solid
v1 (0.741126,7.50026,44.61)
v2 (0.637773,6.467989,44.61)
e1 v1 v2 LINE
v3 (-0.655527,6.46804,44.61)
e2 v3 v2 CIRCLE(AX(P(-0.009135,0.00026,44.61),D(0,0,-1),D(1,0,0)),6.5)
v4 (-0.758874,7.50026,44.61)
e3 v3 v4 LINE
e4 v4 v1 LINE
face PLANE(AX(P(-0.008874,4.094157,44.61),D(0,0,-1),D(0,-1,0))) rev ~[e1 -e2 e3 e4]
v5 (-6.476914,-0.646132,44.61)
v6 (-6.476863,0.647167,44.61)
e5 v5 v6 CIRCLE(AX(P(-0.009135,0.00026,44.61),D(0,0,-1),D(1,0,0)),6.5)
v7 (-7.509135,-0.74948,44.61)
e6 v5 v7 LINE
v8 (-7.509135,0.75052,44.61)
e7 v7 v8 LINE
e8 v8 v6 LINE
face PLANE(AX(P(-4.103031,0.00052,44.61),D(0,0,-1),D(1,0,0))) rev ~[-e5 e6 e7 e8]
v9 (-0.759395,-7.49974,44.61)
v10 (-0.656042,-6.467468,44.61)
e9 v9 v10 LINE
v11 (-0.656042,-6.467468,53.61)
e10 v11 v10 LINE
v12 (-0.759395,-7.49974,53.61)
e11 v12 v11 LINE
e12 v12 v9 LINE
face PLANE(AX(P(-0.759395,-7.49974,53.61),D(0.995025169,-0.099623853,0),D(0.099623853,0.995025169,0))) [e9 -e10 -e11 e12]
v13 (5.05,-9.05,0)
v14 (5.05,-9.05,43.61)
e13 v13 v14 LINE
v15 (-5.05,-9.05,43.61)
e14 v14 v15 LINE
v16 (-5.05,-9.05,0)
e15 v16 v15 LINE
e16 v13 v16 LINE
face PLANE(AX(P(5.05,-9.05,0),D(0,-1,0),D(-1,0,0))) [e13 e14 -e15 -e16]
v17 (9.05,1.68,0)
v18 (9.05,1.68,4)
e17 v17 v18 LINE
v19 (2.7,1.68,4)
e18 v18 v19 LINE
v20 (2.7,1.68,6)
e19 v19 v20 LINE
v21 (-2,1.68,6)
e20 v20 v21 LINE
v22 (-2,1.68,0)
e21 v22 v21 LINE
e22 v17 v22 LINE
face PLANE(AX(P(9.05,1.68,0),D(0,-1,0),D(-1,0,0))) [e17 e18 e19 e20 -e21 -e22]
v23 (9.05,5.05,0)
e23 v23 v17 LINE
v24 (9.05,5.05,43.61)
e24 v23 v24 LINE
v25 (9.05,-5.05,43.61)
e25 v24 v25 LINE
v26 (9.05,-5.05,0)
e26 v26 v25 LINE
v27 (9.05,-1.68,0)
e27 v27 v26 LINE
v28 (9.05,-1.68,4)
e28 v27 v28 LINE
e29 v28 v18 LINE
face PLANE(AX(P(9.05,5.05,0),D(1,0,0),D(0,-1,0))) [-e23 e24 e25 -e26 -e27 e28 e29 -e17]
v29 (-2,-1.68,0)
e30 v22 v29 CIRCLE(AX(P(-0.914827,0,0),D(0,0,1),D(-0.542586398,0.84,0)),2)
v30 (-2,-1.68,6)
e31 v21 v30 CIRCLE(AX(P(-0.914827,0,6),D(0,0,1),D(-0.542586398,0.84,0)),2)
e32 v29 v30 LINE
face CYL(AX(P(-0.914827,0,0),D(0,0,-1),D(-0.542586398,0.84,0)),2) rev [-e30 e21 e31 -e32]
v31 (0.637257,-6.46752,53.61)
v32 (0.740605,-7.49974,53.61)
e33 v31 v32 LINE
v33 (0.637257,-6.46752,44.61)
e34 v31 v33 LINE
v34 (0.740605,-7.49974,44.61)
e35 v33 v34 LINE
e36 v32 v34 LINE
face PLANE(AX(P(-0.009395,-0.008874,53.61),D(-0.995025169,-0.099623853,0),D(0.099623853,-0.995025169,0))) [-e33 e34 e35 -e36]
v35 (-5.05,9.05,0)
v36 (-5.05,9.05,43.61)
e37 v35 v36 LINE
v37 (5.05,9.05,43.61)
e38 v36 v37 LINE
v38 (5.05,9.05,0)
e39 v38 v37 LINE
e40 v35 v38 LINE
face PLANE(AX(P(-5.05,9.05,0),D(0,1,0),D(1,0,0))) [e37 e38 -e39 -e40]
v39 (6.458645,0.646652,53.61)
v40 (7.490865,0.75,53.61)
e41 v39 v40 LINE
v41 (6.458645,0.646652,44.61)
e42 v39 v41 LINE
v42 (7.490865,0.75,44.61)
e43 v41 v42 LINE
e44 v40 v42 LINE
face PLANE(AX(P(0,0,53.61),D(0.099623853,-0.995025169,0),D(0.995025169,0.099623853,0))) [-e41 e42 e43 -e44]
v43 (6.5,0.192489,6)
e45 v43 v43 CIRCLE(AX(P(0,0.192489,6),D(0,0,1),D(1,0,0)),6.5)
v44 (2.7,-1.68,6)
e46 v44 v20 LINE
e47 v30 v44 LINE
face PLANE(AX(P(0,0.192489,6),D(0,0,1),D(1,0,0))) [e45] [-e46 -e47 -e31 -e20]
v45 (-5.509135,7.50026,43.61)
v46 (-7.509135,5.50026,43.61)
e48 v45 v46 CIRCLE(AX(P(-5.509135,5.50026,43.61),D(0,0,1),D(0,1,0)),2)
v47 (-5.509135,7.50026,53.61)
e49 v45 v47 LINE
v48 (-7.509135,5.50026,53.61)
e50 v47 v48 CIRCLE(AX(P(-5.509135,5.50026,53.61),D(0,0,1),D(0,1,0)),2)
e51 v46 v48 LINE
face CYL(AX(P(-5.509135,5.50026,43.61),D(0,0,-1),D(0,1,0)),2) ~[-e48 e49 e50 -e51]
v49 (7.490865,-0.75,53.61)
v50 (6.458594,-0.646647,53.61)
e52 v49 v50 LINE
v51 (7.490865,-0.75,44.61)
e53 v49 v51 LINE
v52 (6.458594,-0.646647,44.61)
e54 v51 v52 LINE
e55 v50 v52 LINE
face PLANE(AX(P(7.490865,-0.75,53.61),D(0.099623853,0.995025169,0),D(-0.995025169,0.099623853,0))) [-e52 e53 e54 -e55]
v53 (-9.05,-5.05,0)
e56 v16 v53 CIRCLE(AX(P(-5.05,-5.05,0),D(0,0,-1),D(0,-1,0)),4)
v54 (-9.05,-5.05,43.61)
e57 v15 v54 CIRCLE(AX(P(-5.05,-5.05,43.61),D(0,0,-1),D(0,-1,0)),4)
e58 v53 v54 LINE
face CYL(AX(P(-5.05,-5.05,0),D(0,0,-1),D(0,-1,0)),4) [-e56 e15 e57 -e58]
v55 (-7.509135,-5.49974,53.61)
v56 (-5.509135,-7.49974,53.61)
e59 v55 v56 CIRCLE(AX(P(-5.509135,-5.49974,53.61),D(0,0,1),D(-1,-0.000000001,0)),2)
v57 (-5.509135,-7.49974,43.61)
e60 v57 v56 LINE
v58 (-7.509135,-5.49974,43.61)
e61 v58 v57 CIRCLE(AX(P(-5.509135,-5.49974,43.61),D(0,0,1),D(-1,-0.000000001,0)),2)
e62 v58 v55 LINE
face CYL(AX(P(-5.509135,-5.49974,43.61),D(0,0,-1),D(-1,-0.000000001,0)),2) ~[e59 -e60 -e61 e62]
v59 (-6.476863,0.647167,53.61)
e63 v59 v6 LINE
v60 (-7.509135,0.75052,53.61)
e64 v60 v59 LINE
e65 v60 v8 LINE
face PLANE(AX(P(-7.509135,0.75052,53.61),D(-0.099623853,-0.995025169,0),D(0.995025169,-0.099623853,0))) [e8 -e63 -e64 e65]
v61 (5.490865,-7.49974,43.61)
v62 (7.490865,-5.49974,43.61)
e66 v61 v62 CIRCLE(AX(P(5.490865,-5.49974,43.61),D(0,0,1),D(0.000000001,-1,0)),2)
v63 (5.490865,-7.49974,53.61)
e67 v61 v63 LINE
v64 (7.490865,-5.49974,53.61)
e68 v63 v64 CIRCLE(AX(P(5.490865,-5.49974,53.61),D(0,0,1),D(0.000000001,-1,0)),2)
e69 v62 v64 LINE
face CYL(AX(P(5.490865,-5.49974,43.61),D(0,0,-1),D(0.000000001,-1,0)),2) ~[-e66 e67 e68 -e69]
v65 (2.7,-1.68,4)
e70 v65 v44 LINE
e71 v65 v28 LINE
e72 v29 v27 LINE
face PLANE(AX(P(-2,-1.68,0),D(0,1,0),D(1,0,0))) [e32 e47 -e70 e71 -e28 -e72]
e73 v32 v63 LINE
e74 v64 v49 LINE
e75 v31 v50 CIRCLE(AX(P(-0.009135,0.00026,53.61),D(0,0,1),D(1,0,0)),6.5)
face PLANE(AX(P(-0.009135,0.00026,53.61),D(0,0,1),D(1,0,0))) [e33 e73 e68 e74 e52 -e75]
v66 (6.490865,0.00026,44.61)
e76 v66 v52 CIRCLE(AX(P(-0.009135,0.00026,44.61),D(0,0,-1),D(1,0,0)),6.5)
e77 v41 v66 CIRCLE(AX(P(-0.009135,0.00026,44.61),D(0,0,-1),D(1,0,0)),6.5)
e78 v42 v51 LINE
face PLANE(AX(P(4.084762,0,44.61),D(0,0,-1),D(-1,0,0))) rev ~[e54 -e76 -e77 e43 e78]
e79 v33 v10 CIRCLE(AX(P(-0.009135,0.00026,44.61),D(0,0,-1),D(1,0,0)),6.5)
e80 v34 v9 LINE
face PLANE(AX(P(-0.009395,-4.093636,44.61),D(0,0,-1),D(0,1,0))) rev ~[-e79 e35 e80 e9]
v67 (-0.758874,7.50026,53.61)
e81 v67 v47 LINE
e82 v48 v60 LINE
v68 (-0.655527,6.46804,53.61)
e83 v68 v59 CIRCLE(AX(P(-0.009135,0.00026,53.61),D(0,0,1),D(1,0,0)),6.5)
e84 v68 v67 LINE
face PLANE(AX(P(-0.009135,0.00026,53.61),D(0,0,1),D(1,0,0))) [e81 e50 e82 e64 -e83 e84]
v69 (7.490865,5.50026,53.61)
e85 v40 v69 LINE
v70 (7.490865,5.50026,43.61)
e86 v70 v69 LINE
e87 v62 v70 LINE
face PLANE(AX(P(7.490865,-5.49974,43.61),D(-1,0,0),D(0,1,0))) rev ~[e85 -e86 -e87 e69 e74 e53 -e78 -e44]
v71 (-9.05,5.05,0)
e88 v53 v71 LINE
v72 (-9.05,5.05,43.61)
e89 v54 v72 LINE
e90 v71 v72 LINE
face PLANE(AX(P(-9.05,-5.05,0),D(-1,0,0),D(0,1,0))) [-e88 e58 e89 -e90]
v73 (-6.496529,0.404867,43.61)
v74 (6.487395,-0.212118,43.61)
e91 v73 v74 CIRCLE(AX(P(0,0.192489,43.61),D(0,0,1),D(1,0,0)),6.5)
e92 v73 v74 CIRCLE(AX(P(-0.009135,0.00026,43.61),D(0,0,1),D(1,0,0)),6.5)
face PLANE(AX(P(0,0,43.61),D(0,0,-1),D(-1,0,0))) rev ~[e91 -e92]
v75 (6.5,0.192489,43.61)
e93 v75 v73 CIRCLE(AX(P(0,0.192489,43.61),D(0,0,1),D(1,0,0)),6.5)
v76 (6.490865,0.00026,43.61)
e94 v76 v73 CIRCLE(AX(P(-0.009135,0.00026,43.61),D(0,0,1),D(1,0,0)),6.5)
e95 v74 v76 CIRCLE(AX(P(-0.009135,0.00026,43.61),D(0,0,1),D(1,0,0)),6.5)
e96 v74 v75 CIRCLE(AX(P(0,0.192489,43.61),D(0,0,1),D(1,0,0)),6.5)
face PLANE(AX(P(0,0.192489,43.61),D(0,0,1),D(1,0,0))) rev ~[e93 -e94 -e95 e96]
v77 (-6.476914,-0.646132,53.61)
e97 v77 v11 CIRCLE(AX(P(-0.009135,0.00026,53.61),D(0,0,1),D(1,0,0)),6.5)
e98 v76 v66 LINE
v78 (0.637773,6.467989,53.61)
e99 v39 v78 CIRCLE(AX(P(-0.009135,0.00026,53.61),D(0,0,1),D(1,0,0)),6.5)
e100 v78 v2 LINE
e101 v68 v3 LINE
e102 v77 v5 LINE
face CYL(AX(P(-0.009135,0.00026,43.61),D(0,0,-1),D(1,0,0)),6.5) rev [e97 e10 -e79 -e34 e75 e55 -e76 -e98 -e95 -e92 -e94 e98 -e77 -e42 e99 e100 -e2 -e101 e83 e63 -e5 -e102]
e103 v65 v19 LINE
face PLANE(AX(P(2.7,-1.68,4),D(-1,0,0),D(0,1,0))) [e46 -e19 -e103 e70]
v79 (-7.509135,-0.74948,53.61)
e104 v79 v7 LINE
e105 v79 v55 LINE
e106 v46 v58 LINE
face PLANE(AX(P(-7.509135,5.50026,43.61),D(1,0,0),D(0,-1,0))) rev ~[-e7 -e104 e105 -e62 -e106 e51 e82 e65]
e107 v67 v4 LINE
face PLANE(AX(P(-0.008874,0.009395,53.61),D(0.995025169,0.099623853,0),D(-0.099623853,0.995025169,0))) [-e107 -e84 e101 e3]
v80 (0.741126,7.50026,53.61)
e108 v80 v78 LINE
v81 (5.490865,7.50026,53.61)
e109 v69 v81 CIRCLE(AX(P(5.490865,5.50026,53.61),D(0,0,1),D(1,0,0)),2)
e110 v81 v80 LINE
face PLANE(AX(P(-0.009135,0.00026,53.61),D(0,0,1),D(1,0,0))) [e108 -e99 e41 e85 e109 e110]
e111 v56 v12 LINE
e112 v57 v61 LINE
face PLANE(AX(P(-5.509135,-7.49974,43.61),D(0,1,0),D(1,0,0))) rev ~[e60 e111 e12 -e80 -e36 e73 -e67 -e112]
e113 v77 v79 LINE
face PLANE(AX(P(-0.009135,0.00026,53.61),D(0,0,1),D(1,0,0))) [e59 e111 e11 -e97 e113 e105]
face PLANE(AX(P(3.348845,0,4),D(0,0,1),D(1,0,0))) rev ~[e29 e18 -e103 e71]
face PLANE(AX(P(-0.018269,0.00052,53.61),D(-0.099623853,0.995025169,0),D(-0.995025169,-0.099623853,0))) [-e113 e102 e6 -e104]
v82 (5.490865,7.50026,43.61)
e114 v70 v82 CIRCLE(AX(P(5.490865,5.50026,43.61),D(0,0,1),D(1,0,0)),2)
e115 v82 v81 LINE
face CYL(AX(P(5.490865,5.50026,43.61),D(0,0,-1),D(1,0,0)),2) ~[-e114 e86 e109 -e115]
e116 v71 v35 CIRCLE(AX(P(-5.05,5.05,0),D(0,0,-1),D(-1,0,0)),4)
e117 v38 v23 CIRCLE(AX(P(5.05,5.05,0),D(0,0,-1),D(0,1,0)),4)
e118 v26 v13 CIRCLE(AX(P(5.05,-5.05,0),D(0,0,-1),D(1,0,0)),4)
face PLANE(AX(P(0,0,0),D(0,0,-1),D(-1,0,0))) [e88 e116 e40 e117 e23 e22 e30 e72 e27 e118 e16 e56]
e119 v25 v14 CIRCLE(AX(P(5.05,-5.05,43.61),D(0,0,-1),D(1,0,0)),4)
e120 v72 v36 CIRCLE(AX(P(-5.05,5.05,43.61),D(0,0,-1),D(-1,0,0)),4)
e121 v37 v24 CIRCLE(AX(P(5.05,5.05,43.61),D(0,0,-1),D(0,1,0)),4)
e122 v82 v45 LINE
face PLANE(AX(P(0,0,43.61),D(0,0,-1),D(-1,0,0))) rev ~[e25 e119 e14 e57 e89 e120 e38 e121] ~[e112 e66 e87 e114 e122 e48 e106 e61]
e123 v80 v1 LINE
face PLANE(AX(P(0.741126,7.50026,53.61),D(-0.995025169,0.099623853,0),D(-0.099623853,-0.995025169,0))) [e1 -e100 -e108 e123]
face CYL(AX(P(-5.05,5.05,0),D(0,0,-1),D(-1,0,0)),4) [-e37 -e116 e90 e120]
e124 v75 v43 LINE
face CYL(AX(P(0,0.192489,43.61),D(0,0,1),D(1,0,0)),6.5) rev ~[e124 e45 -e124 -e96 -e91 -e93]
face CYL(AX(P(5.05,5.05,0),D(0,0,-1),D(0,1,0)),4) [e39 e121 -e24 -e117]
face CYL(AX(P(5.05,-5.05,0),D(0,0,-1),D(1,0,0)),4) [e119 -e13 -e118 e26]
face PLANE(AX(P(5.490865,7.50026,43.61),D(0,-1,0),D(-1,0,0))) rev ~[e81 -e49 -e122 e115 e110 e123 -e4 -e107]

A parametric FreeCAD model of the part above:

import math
import FreeCAD as App
import Part
import Sketcher

doc = App.newDocument("Part")
body = doc.addObject("PartDesign::Body", "Body")

sketch1 = body.newObject("Sketcher::SketchObject", "Sketch")
sketch1.AttachmentSupport = (doc.getObject("XY_Plane"), [""])
sketch1.MapMode = "FlatFace"
sketch1.addGeometry([
    Part.LineSegment(App.Vector(5.05, 9.05, 0), App.Vector(-5.05, 9.05, 0)),
    Part.ArcOfCircle(Part.Circle(App.Vector(-5.05, 5.05, 0), App.Vector(0, 0, 1), 4), math.radians(90), math.radians(180)),
    Part.LineSegment(App.Vector(-9.05, 5.05, 0), App.Vector(-9.05, -5.05, 0)),
    Part.ArcOfCircle(Part.Circle(App.Vector(-5.05, -5.05, 0), App.Vector(0, 0, 1), 4), math.radians(180), math.radians(270)),
    Part.LineSegment(App.Vector(-5.05, -9.05, 0), App.Vector(5.05, -9.05, 0)),
    Part.ArcOfCircle(Part.Circle(App.Vector(5.05, -5.05, 0), App.Vector(0, 0, 1), 4), math.radians(-90), math.radians(0)),
    Part.LineSegment(App.Vector(9.05, -5.05, 0), App.Vector(9.05, 5.05, 0)),
    Part.ArcOfCircle(Part.Circle(App.Vector(5.05, 5.05, 0), App.Vector(0, 0, 1), 4), math.radians(0), math.radians(90)),
], False)
sketch1.addConstraint([
    Sketcher.Constraint("Tangent", 0, 2, 1, 1),
    Sketcher.Constraint("Tangent", 1, 2, 2, 1),
    Sketcher.Constraint("Tangent", 2, 2, 3, 1),
    Sketcher.Constraint("Tangent", 3, 2, 4, 1),
    Sketcher.Constraint("Tangent", 4, 2, 5, 1),
    Sketcher.Constraint("Tangent", 5, 2, 6, 1),
    Sketcher.Constraint("Tangent", 6, 2, 7, 1),
    Sketcher.Constraint("Tangent", 7, 2, 0, 1),
    Sketcher.Constraint("Horizontal", 0),
    Sketcher.Constraint("Vertical", 2),
    Sketcher.Constraint("Horizontal", 4),
    Sketcher.Constraint("Vertical", 6),
    Sketcher.Constraint("Equal", 1, 3),
    Sketcher.Constraint("Equal", 3, 5),
    Sketcher.Constraint("Equal", 5, 7),
    Sketcher.Constraint("Symmetric", 1, 3, 5, 3, -1, 1),
    Sketcher.Constraint("Equal", 4, 2),
    Sketcher.Constraint("Radius", 1, 4.0),
    Sketcher.Constraint("DistanceX", 0, 2, 0, 1, 10.1),
])
pad1 = body.newObject("PartDesign::Pad", "Pad")
pad1.Profile = sketch1
pad1.Length = 43.61

sketch2 = body.newObject("Sketcher::SketchObject", "Sketch001")
sketch2.AttachmentSupport = (doc.getObject("XY_Plane"), [""])
sketch2.MapMode = "FlatFace"
sketch2.AttachmentOffset = App.Placement(App.Vector(0, 0, 43.61), App.Rotation())
sketch2.addGeometry([
    Part.LineSegment(App.Vector(-5.509135, -7.49974, 0), App.Vector(5.490865, -7.49974, 0)),
    Part.ArcOfCircle(Part.Circle(App.Vector(5.490865, -5.49974, 0), App.Vector(0, 0, 1), 2), math.radians(-90), math.radians(0)),
    Part.LineSegment(App.Vector(7.490865, -5.49974, 0), App.Vector(7.490865, 5.50026, 0)),
    Part.ArcOfCircle(Part.Circle(App.Vector(5.490865, 5.50026, 0), App.Vector(0, 0, 1), 2), math.radians(0), math.radians(90)),
    Part.LineSegment(App.Vector(5.490865, 7.50026, 0), App.Vector(-5.509135, 7.50026, 0)),
    Part.ArcOfCircle(Part.Circle(App.Vector(-5.509135, 5.50026, 0), App.Vector(0, 0, 1), 2), math.radians(90), math.radians(180)),
    Part.LineSegment(App.Vector(-7.509135, 5.50026, 0), App.Vector(-7.509135, -5.49974, 0)),
    Part.ArcOfCircle(Part.Circle(App.Vector(-5.509135, -5.49974, 0), App.Vector(0, 0, 1), 2), math.radians(-180), math.radians(-90)),
    Part.Circle(App.Vector(-0.009135, 0.00026, 0), App.Vector(0, 0, 1), 6.5),
], False)
sketch2.addConstraint([
    Sketcher.Constraint("Tangent", 0, 2, 1, 1),
    Sketcher.Constraint("Tangent", 1, 2, 2, 1),
    Sketcher.Constraint("Tangent", 2, 2, 3, 1),
    Sketcher.Constraint("Tangent", 3, 2, 4, 1),
    Sketcher.Constraint("Tangent", 4, 2, 5, 1),
    Sketcher.Constraint("Tangent", 5, 2, 6, 1),
    Sketcher.Constraint("Tangent", 6, 2, 7, 1),
    Sketcher.Constraint("Tangent", 7, 2, 0, 1),
    Sketcher.Constraint("Horizontal", 0),
    Sketcher.Constraint("Vertical", 2),
    Sketcher.Constraint("Horizontal", 4),
    Sketcher.Constraint("Vertical", 6),
    Sketcher.Constraint("Equal", 1, 3),
    Sketcher.Constraint("Equal", 3, 5),
    Sketcher.Constraint("Equal", 5, 7),
    Sketcher.Constraint("Equal", 4, 2),
    Sketcher.Constraint("Diameter", 8, 13.0),
    Sketcher.Constraint("Radius", 1, 2.0),
    Sketcher.Constraint("DistanceX", 0, 1, 0, 2, 11.0),
    Sketcher.Constraint("DistanceX", 8, 3, 1, 3, 5.5),
    Sketcher.Constraint("DistanceY", 1, 3, 8, 3, 5.5),
    Sketcher.Constraint("DistanceY", 1, 3, -1, 1, 5.49974),
    Sketcher.Constraint("DistanceX", -1, 1, 1, 3, 5.490865),
])
pad2 = body.newObject("PartDesign::Pad", "Pad001")
pad2.Profile = sketch2
pad2.Length = 10

sketch3 = body.newObject("Sketcher::SketchObject", "Sketch002")
sketch3.AttachmentSupport = (doc.getObject("XY_Plane"), [""])
sketch3.MapMode = "FlatFace"
sketch3.addGeometry([
    Part.LineSegment(App.Vector(-2, -1.68, 0), App.Vector(9.05, -1.68, 0)),
    Part.LineSegment(App.Vector(9.05, -1.68, 0), App.Vector(9.05, 1.68, 0)),
    Part.LineSegment(App.Vector(9.05, 1.68, 0), App.Vector(-2, 1.68, 0)),
    Part.ArcOfCircle(Part.Circle(App.Vector(-0.914827, 0, 0), App.Vector(0, 0, 1), 2), math.radians(122.85988), math.radians(237.14012)),
], False)
sketch3.addConstraint([
    Sketcher.Constraint("Coincident", 0, 2, 1, 1),
    Sketcher.Constraint("Coincident", 1, 2, 2, 1),
    Sketcher.Constraint("Coincident", 2, 2, 3, 1),
    Sketcher.Constraint("Coincident", 3, 2, 0, 1),
    Sketcher.Constraint("Horizontal", 0),
    Sketcher.Constraint("Vertical", 1),
    Sketcher.Constraint("Horizontal", 2),
    Sketcher.Constraint("Symmetric", 2, 2, 3, 2, -1),
    Sketcher.Constraint("Radius", 3, 2.0),
    Sketcher.Constraint("DistanceX", 2, 2, -1, 1, 2.0),
    Sketcher.Constraint("DistanceX", 0, 1, 0, 2, 11.05),
    Sketcher.Constraint("DistanceY", 1, 1, 1, 2, 3.36),
])
pocket1 = body.newObject("PartDesign::Pocket", "Pocket")
pocket1.Profile = sketch3
pocket1.Length = 4
pocket1.Reversed = True

sketch4 = body.newObject("Sketcher::SketchObject", "Sketch003")
sketch4.AttachmentSupport = (doc.getObject("XY_Plane"), [""])
sketch4.MapMode = "FlatFace"
sketch4.AttachmentOffset = App.Placement(App.Vector(0, 0, 4), App.Rotation())
sketch4.addGeometry([
    Part.LineSegment(App.Vector(-2, 1.68, 0), App.Vector(2.7, 1.68, 0)),
    Part.LineSegment(App.Vector(2.7, 1.68, 0), App.Vector(2.7, -1.68, 0)),
    Part.LineSegment(App.Vector(2.7, -1.68, 0), App.Vector(-2, -1.68, 0)),
    Part.ArcOfCircle(Part.Circle(App.Vector(-0.914827, 0, 0), App.Vector(0, 0, 1), 2), math.radians(122.85988), math.radians(237.14012)),
], False)
sketch4.addConstraint([
    Sketcher.Constraint("Coincident", 0, 2, 1, 1),
    Sketcher.Constraint("Coincident", 1, 2, 2, 1),
    Sketcher.Constraint("Coincident", 2, 2, 3, 2),
    Sketcher.Constraint("Coincident", 3, 1, 0, 1),
    Sketcher.Constraint("Horizontal", 0),
    Sketcher.Constraint("Vertical", 1),
    Sketcher.Constraint("Horizontal", 2),
    Sketcher.Constraint("Symmetric", 2, 2, 3, 1, -1),
    Sketcher.Constraint("Radius", 3, 2.0),
    Sketcher.Constraint("DistanceX", 0, 1, 0, 2, 4.7),
    Sketcher.Constraint("DistanceX", 2, 2, -1, 1, 2.0),
    Sketcher.Constraint("DistanceY", 1, 2, 1, 1, 3.36),
])
pocket2 = body.newObject("PartDesign::Pocket", "Pocket001")
pocket2.Profile = sketch4
pocket2.Length = 2
pocket2.Reversed = True

sketch5 = body.newObject("Sketcher::SketchObject", "Sketch004")
sketch5.AttachmentSupport = (doc.getObject("XY_Plane"), [""])
sketch5.MapMode = "FlatFace"
sketch5.AttachmentOffset = App.Placement(App.Vector(0, 0, 53.61), App.Rotation())
sketch5.addGeometry([
    Part.LineSegment(App.Vector(7.490865, 0.75, 0), App.Vector(0, 0, 0)),
    Part.LineSegment(App.Vector(0, 0, 0), App.Vector(7.490865, -0.75, 0)),
    Part.LineSegment(App.Vector(7.490865, -0.75, 0), App.Vector(7.490865, 0.75, 0)),
], False)
sketch5.addConstraint([
    Sketcher.Constraint("Coincident", 0, 2, 1, 1),
    Sketcher.Constraint("Coincident", 1, 2, 2, 1),
    Sketcher.Constraint("Coincident", 2, 2, 0, 1),
    Sketcher.Constraint("Vertical", 2),
    Sketcher.Constraint("Coincident", 0, 2, -1, 1),
    Sketcher.Constraint("Equal", 0, 1),
    Sketcher.Constraint("DistanceY", 2, 1, 2, 2, 1.5),
    Sketcher.Constraint("Distance", 0, 7.528318),
])
pocket3 = body.newObject("PartDesign::Pocket", "Pocket002")
pocket3.Profile = sketch5
pocket3.Length = 9
doc.recompute()

datumline = body.newObject("PartDesign::Line", "DatumLine")
datumline.Placement = App.Placement(App.Vector(-0.009135, 0.00026, 0), App.Rotation(App.Vector(0, 0, 1), App.Vector(0, 0, 1)))
polarpattern = body.newObject("PartDesign::PolarPattern", "PolarPattern")
polarpattern.Originals = [pocket3]
polarpattern.Axis = (datumline, [""])
polarpattern.Angle = 360
polarpattern.Occurrences = 4
body.Tip = polarpattern

sketch6 = body.newObject("Sketcher::SketchObject", "Sketch005")
sketch6.AttachmentSupport = (doc.getObject("XY_Plane"), [""])
sketch6.MapMode = "FlatFace"
sketch6.AttachmentOffset = App.Placement(App.Vector(0, 0, 43.61), App.Rotation())
sketch6.addGeometry(Part.Circle(App.Vector(0, 0.192489, 0), App.Vector(0, 0, 1), 6.5), False)
sketch6.addConstraint([
    Sketcher.Constraint("PointOnObject", 0, 3, -2),
    Sketcher.Constraint("Diameter", 0, 13.0),
    Sketcher.Constraint("DistanceY", -1, 1, 0, 3, 0.192489),
])
pocket4 = body.newObject("PartDesign::Pocket", "Pocket003")
pocket4.Profile = sketch6
pocket4.Length = 37.61

doc.recompute()
